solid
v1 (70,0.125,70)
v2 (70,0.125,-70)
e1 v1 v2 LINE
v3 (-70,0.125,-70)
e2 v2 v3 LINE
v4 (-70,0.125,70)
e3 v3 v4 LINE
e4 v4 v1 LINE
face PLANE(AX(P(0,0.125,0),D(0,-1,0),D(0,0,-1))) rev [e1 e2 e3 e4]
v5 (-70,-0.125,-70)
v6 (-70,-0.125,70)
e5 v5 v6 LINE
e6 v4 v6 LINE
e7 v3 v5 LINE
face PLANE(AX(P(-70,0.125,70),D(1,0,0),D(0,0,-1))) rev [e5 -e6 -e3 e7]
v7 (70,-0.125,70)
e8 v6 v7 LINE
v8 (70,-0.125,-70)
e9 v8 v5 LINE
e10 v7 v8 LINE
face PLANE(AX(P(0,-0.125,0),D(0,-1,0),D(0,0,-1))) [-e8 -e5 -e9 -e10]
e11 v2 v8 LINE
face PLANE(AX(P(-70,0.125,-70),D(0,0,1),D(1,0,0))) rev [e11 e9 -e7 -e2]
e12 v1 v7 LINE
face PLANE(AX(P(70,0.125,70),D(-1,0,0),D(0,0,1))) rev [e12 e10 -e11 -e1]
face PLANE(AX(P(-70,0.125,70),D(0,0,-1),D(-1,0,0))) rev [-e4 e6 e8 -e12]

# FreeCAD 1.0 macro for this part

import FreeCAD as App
import Part
import Sketcher

V = App.Vector
Q = App.Units.Quantity

doc = App.newDocument("Part")
params = doc.addObject("Spreadsheet::Sheet", "Params")
for row, (alias, value) in enumerate([
    ("sketch1_width", "140 mm"),
    ("pad1_length", "0.25 mm"),
], start=1):
    params.set(f"A{row}", alias)
    params.set(f"B{row}", "=" + value)
    params.setAlias(f"B{row}", alias)

body = doc.addObject("PartDesign::Body", "Body")

sketch1 = body.newObject("Sketcher::SketchObject", "Sketch")
sketch1.AttachmentSupport = (doc.getObject("XZ_Plane"), [""])
sketch1.MapMode = "FlatFace"
sketch1.addGeometry(Part.LineSegment(V(-70, -70, 0), V(-70, 70, 0)), False)
sketch1.addGeometry(Part.LineSegment(V(-70, 70, 0), V(70, 70, 0)), False)
sketch1.addGeometry(Part.LineSegment(V(70, 70, 0), V(70, -70, 0)), False)
sketch1.addGeometry(Part.LineSegment(V(70, -70, 0), V(-70, -70, 0)), False)
sketch1.addConstraint(Sketcher.Constraint("Coincident", 0, 2, 1, 1))
sketch1.addConstraint(Sketcher.Constraint("Coincident", 1, 2, 2, 1))
sketch1.addConstraint(Sketcher.Constraint("Coincident", 2, 2, 3, 1))
sketch1.addConstraint(Sketcher.Constraint("Coincident", 3, 2, 0, 1))
sketch1.addConstraint(Sketcher.Constraint("Vertical", 0))
sketch1.addConstraint(Sketcher.Constraint("Horizontal", 1))
sketch1.addConstraint(Sketcher.Constraint("Vertical", 2))
sketch1.addConstraint(Sketcher.Constraint("Horizontal", 3))
sketch1.addConstraint(Sketcher.Constraint("Symmetric", 0, 2, 2, 2, -1, 1))
sketch1.addConstraint(Sketcher.Constraint("Equal", 3, 0))
sketch1.addConstraint(Sketcher.Constraint("DistanceX", 1, 1, 1, 2, Q("140 mm")))
sketch1.setExpression("Constraints[10]", "Params.sketch1_width")
pad1 = body.newObject("PartDesign::Pad", "Pad")
pad1.Profile = sketch1
pad1.setExpression("Length", "Params.pad1_length")
pad1.Midplane = True

doc.recompute()
